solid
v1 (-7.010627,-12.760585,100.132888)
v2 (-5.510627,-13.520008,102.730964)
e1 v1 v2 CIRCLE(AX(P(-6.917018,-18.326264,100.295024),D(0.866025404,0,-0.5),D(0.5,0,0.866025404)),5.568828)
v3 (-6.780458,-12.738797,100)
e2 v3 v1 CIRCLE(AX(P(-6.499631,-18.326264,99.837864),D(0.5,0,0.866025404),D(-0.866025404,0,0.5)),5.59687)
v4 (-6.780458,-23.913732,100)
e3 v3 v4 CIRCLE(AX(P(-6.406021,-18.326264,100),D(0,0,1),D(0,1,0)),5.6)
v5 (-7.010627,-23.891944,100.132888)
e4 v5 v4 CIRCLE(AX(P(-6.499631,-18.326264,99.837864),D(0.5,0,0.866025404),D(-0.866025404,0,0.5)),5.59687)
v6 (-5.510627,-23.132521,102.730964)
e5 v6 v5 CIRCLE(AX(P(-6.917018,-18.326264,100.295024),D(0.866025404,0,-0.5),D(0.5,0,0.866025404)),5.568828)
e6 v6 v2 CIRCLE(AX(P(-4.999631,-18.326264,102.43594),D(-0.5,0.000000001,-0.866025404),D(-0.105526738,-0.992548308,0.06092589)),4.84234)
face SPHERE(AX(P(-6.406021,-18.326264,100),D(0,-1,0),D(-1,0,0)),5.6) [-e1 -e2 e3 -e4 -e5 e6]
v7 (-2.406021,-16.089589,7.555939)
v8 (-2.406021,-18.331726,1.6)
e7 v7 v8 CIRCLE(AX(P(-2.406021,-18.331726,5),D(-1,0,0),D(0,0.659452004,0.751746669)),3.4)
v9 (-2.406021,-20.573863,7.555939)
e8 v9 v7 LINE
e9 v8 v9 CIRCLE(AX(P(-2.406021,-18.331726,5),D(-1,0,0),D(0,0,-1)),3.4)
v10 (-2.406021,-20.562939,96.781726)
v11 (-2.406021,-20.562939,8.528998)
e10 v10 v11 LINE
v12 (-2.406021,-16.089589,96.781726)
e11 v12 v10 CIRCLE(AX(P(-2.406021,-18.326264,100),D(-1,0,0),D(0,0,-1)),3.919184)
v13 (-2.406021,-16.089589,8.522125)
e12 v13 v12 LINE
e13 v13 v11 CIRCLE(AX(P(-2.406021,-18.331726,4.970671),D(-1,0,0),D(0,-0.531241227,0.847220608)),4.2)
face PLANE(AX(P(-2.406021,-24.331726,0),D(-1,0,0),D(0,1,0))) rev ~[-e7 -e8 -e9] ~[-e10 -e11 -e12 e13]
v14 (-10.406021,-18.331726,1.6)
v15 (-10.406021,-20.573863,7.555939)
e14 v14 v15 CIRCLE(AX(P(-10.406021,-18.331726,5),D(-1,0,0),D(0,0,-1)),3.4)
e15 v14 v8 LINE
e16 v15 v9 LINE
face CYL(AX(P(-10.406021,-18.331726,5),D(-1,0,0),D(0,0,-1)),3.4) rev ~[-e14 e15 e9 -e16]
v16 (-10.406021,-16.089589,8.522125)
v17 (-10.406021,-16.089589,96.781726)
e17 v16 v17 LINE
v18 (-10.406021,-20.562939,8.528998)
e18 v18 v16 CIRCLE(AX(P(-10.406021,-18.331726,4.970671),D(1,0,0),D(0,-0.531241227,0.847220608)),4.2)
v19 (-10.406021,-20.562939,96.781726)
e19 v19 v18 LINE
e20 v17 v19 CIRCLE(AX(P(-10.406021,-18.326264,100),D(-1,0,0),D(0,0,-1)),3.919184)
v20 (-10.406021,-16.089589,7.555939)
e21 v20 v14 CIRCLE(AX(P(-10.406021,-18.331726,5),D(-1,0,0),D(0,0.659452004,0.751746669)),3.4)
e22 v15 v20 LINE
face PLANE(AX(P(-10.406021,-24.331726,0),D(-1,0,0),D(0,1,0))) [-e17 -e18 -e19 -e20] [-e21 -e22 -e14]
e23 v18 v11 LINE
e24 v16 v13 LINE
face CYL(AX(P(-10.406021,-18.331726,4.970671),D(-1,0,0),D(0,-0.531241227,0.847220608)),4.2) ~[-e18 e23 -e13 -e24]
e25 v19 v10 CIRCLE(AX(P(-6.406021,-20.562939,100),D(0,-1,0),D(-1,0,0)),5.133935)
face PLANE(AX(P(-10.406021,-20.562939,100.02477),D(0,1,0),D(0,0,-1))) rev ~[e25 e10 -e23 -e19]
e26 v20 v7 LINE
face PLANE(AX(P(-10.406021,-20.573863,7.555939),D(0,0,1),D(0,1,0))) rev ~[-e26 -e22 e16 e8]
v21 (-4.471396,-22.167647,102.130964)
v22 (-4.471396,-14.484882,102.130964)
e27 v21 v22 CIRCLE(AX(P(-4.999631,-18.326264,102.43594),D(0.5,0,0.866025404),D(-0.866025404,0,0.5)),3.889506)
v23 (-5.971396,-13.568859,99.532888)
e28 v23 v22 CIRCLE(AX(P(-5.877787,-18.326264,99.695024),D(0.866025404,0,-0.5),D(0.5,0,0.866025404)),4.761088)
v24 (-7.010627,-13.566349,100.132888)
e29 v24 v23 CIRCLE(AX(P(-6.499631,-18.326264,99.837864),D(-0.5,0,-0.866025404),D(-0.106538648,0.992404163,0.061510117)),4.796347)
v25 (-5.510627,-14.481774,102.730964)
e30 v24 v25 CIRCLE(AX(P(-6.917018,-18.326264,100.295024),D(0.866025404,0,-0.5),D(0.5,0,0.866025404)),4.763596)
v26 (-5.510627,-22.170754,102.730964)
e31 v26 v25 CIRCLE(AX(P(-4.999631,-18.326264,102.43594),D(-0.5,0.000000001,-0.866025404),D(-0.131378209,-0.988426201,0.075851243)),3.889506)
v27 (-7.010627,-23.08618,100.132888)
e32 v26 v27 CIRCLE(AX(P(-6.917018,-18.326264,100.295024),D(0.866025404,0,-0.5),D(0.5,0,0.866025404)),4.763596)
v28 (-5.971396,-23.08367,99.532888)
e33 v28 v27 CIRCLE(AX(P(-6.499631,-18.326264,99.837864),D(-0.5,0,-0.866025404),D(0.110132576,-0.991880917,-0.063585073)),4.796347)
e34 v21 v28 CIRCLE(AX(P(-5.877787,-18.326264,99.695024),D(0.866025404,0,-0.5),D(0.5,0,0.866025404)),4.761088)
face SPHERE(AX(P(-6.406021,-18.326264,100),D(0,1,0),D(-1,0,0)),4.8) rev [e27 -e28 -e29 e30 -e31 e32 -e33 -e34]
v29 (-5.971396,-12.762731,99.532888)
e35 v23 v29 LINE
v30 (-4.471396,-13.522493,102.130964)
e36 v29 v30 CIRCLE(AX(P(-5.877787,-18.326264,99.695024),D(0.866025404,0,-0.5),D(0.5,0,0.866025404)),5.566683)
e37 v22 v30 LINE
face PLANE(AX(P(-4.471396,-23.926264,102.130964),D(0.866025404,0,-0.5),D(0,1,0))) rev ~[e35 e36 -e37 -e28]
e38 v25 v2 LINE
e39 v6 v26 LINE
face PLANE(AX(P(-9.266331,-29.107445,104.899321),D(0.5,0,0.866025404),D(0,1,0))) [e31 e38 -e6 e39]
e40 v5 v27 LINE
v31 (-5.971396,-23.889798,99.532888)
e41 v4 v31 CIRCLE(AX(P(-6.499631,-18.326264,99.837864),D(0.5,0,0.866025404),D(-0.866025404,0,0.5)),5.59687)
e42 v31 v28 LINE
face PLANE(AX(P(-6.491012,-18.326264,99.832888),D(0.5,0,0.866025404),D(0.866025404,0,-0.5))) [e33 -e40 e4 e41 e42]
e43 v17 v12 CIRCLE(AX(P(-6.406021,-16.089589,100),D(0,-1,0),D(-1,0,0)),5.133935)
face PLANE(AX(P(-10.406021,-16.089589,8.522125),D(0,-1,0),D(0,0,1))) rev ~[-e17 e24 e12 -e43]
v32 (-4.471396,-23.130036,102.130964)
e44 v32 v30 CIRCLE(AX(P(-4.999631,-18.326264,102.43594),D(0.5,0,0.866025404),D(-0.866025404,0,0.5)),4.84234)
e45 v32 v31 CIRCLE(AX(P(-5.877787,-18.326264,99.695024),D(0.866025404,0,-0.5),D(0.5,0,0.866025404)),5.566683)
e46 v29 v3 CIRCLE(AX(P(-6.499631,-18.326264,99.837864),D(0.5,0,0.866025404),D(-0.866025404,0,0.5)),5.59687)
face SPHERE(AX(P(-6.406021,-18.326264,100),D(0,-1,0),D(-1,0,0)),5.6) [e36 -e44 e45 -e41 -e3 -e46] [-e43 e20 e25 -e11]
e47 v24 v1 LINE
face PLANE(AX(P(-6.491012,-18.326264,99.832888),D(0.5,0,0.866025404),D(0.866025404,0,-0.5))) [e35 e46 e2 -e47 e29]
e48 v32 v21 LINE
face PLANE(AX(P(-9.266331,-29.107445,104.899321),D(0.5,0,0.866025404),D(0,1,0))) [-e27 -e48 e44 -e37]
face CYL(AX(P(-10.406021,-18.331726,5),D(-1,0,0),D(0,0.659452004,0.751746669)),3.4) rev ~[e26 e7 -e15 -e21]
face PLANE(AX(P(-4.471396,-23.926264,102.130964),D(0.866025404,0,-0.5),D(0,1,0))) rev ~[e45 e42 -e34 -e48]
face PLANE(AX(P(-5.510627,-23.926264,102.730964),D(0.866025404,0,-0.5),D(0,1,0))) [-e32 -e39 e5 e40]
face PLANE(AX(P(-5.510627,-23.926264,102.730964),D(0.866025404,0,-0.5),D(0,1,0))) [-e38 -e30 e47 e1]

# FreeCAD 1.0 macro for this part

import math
import FreeCAD as App
import Part
import Sketcher
from FreeCAD import Vector


def add_polygon(sketch, points):
    """Adds a closed chain of lines whose ends are joined by coincident constraints."""
    first, n = sketch.GeometryCount, len(points)
    for a, b in zip(points, points[1:] + points[:1]):
        sketch.addGeometry(Part.LineSegment(App.Vector(*a, 0), App.Vector(*b, 0)), False)
    for i in range(n):
        sketch.addConstraint(Sketcher.Constraint("Coincident", first + i, 2, first + (i + 1) % n, 1))

doc = App.newDocument("Part")
body = doc.addObject("PartDesign::Body", "Body")

sketch1 = doc.addObject("Sketcher::SketchObject", "Sketch")
body.addObject(sketch1)
sketch1.AttachmentSupport = (doc.XY_Plane, [""])
sketch1.MapMode = "FlatFace"
add_polygon(sketch1, [(-10, -12), (-10, -24), (-2, -24), (-2, -12)])
sketch1.addConstraint(Sketcher.Constraint("Vertical", 0))
sketch1.addConstraint(Sketcher.Constraint("Horizontal", 1))
sketch1.addConstraint(Sketcher.Constraint("Vertical", 2))
sketch1.addConstraint(Sketcher.Constraint("Horizontal", 3))
sketch1.addConstraint(Sketcher.Constraint("DistanceX", 1, 1, 1, 2, 8.0))
sketch1.addConstraint(Sketcher.Constraint("DistanceY", 0, 2, 0, 1, 12.0))
sketch1.addConstraint(Sketcher.Constraint("DistanceX", 0, 2, -1, 1, 10.406021))
sketch1.addConstraint(Sketcher.Constraint("DistanceY", 0, 2, -1, 1, 24.331726))
pad1 = doc.addObject("PartDesign::Pad", "Pad")
body.addObject(pad1)
pad1.Profile = sketch1
pad1.Length = 100

sketch2 = doc.addObject("Sketcher::SketchObject", "Sketch001")
body.addObject(sketch2)
sketch2.AttachmentSupport = (doc.YZ_Plane, [""])
sketch2.MapMode = "FlatFace"
sketch2.AttachmentOffset = App.Placement(Vector(0, 0, -10.406021), App.Rotation())
sketch2.addGeometry(Part.LineSegment(Vector(-20.6, 7.6, 0), Vector(-16.1, 7.6, 0)), False)
sketch2.addGeometry(Part.ArcOfCircle(Part.Circle(Vector(-18.3, 5, 0), Vector(0, 0, 1), 3.4), math.radians(-90), math.radians(49)), False)
sketch2.addGeometry(Part.ArcOfCircle(Part.Circle(Vector(-18.3, 5, 0), Vector(0, 0, 1), 3.4), math.radians(131), math.radians(270)), False)
sketch2.addConstraint(Sketcher.Constraint("Coincident", 0, 2, 1, 2))
sketch2.addConstraint(Sketcher.Constraint("Tangent", 1, 1, 2, 2))
sketch2.addConstraint(Sketcher.Constraint("Coincident", 2, 1, 0, 1))
sketch2.addConstraint(Sketcher.Constraint("Horizontal", 0))
sketch2.addConstraint(Sketcher.Constraint("Equal", 1, 2))
sketch2.addConstraint(Sketcher.Constraint("Vertical", 2, 3, 1, 1))
sketch2.addConstraint(Sketcher.Constraint("Radius", 1, 3.4))
sketch2.addConstraint(Sketcher.Constraint("DistanceY", -1, 1, 1, 3, 5.0))
sketch2.addConstraint(Sketcher.Constraint("DistanceX", 0, 1, 0, 2, 4.484274))
sketch2.addConstraint(Sketcher.Constraint("DistanceX", 0, 2, -1, 1, 16.089589))
pocket1 = doc.addObject("PartDesign::Pocket", "Pocket")
body.addObject(pocket1)
pocket1.Profile = sketch2
pocket1.Length = 10
pocket1.Reversed = True

sketch3 = doc.addObject("Sketcher::SketchObject", "Sketch002")
body.addObject(sketch3)
sketch3.AttachmentSupport = (doc.YZ_Plane, [""])
sketch3.MapMode = "FlatFace"
sketch3.AttachmentOffset = App.Placement(Vector(0, 0, -10.406021), App.Rotation())
sketch3.addGeometry(Part.LineSegment(Vector(-12.3, 100, 0), Vector(-12.3, 0, 0)), False)
sketch3.addGeometry(Part.LineSegment(Vector(-12.3, 0, 0), Vector(-24.3, 0, 0)), False)
sketch3.addGeometry(Part.LineSegment(Vector(-24.3, 0, 0), Vector(-24.3, 100, 0)), False)
sketch3.addGeometry(Part.LineSegment(Vector(-24.3, 100, 0), Vector(-20.6, 100, 0)), False)
sketch3.addGeometry(Part.LineSegment(Vector(-20.6, 100, 0), Vector(-20.6, 8.5, 0)), False)
sketch3.addGeometry(Part.ArcOfCircle(Part.Circle(Vector(-18.3, 5, 0), Vector(0, 0, 1), 4.2), math.radians(122), math.radians(418)), False)
sketch3.addGeometry(Part.LineSegment(Vector(-16.1, 8.5, 0), Vector(-16.1, 100, 0)), False)
sketch3.addGeometry(Part.LineSegment(Vector(-16.1, 100, 0), Vector(-12.3, 100, 0)), False)
sketch3.addConstraint(Sketcher.Constraint("Coincident", 0, 2, 1, 1))
sketch3.addConstraint(Sketcher.Constraint("Coincident", 1, 2, 2, 1))
sketch3.addConstraint(Sketcher.Constraint("Coincident", 2, 2, 3, 1))
sketch3.addConstraint(Sketcher.Constraint("Coincident", 3, 2, 4, 1))
sketch3.addConstraint(Sketcher.Constraint("Coincident", 4, 2, 5, 1))
sketch3.addConstraint(Sketcher.Constraint("Coincident", 5, 2, 6, 1))
sketch3.addConstraint(Sketcher.Constraint("Coincident", 6, 2, 7, 1))
sketch3.addConstraint(Sketcher.Constraint("Coincident", 7, 2, 0, 1))
sketch3.addConstraint(Sketcher.Constraint("Vertical", 0))
sketch3.addConstraint(Sketcher.Constraint("Horizontal", 1))
sketch3.addConstraint(Sketcher.Constraint("Vertical", 2))
sketch3.addConstraint(Sketcher.Constraint("Vertical", 4))
sketch3.addConstraint(Sketcher.Constraint("Vertical", 6))
sketch3.addConstraint(Sketcher.Constraint("Horizontal", 3, 2, 6, 2))
sketch3.addConstraint(Sketcher.Constraint("Horizontal", 2, 2, 7, 2))
sketch3.addConstraint(Sketcher.Constraint("Radius", 5, 4.2))
sketch3.addConstraint(Sketcher.Constraint("DistanceX", 1, 2, 1, 1, 12.0))
sketch3.addConstraint(Sketcher.Constraint("DistanceY", -1, 1, 2, 2, 100.0))
sketch3.addConstraint(Sketcher.Constraint("DistanceX", 5, 3, 0, 2, 6.0))
sketch3.addConstraint(Sketcher.Constraint("DistanceY", 5, 3, 3, 2, 95.054099))
sketch3.addConstraint(Sketcher.Constraint("Distance", 3, 3.768868))
sketch3.addConstraint(Sketcher.Constraint("DistanceY", 0, 2, 0, 1, 100.011857))
sketch3.addConstraint(Sketcher.Constraint("DistanceY", 6, 1, 6, 2, 91.502646))
sketch3.addConstraint(Sketcher.Constraint("DistanceY", -1, 1, 5, 3, 4.970671))
sketch3.addConstraint(Sketcher.Constraint("DistanceX", 3, 2, -1, 1, 20.562939))
pocket2 = doc.addObject("PartDesign::Pocket", "Pocket001")
body.addObject(pocket2)
pocket2.Profile = sketch3
pocket2.Length = 100
pocket2.Reversed = True

sketch4 = doc.addObject("Sketcher::SketchObject", "Sketch003")
body.addObject(sketch4)
sketch4.AttachmentSupport = (doc.XY_Plane, [""])
sketch4.MapMode = "FlatFace"
sketch4.AttachmentOffset = App.Placement(Vector(0, 0, 100), App.Rotation())
sketch4.addGeometry(Part.LineSegment(Vector(-6.4, -13.5, 0), Vector(-6.4, -12.7, 0)), False)
sketch4.addGeometry(Part.ArcOfCircle(Part.Circle(Vector(-6.4, -18.3, 0), Vector(0, 0, 1), 5.6), math.radians(90), math.radians(270)), False)
sketch4.addGeometry(Part.LineSegment(Vector(-6.4, -23.9, 0), Vector(-6.4, -23.1, 0)), False)
sketch4.addGeometry(Part.ArcOfCircle(Part.Circle(Vector(-6.4, -18.3, 0), Vector(0, 0, 1), 4.8), math.radians(90), math.radians(270)), False)
sketch4.addGeometry(Part.LineSegment(Vector(-6.4, -12.7, 0), Vector(-6.4, -23.9, 0)), True)
sketch4.addConstraint(Sketcher.Constraint("Coincident", 0, 2, 1, 1))
sketch4.addConstraint(Sketcher.Constraint("Coincident", 1, 2, 2, 1))
sketch4.addConstraint(Sketcher.Constraint("Coincident", 2, 2, 3, 2))
sketch4.addConstraint(Sketcher.Constraint("Coincident", 3, 1, 0, 1))
sketch4.addConstraint(Sketcher.Constraint("Vertical", 0))
sketch4.addConstraint(Sketcher.Constraint("Vertical", 2))
sketch4.addConstraint(Sketcher.Constraint("Vertical", 4))
sketch4.addConstraint(Sketcher.Constraint("Coincident", 3, 3, 1, 3))
sketch4.addConstraint(Sketcher.Constraint("Coincident", 4, 1, 0, 2))
sketch4.addConstraint(Sketcher.Constraint("Coincident", 4, 2, 1, 2))
sketch4.addConstraint(Sketcher.Constraint("Vertical", 3, 3, 0, 2))
sketch4.addConstraint(Sketcher.Constraint("Radius", 1, 5.6))
sketch4.addConstraint(Sketcher.Constraint("Radius", 3, 4.8))
sketch4.addConstraint(Sketcher.Constraint("DistanceX", 1, 3, -1, 1, 6.406021))
sketch4.addConstraint(Sketcher.Constraint("DistanceY", 1, 3, -1, 1, 18.326264))
revolution = doc.addObject("PartDesign::Revolution", "Revolution")
body.addObject(revolution)
revolution.Profile = sketch4
revolution.ReferenceAxis = (sketch4, ["Axis0"])
revolution.Angle = 360

sketch5 = doc.addObject("Sketcher::SketchObject", "Sketch004")
body.addObject(sketch5)
sketch5.AttachmentSupport = (doc.XY_Plane, [""])
sketch5.MapMode = "FlatFace"
sketch5.AttachmentOffset = App.Placement(Vector(0, 0, 100), App.Rotation())
sketch5.addGeometry(Part.ArcOfCircle(Part.Circle(Vector(-6.4, -18.3, 0), Vector(0, 0, 1), 4.8), math.radians(90), math.radians(270)), False)
sketch5.addGeometry(Part.LineSegment(Vector(-6.4, -23.1, 0), Vector(-6.4, -13.5, 0)), False)
sketch5.addGeometry(Part.LineSegment(Vector(-6.4, -13.5, 0), Vector(-6.4, -23.1, 0)), True)
sketch5.addConstraint(Sketcher.Constraint("Coincident", 0, 1, 1, 2))
sketch5.addConstraint(Sketcher.Constraint("Coincident", 1, 1, 0, 2))
sketch5.addConstraint(Sketcher.Constraint("Vertical", 1))
sketch5.addConstraint(Sketcher.Constraint("Vertical", 2))
sketch5.addConstraint(Sketcher.Constraint("Coincident", 2, 1, 0, 1))
sketch5.addConstraint(Sketcher.Constraint("Equal", 1, 2))
sketch5.addConstraint(Sketcher.Constraint("Radius", 0, 4.8))
sketch5.addConstraint(Sketcher.Constraint("DistanceX", 0, 3, -1, 1, 6.406021))
sketch5.addConstraint(Sketcher.Constraint("DistanceX", 0, 1, -1, 1, 6.406021))
sketch5.addConstraint(Sketcher.Constraint("DistanceY", 0, 3, -1, 1, 18.326264))
groove = doc.addObject("PartDesign::Groove", "Groove")
body.addObject(groove)
groove.Profile = sketch5
groove.ReferenceAxis = (sketch5, ["Axis0"])
groove.Angle = 360

sketch6 = doc.addObject("Sketcher::SketchObject", "Sketch005")
body.addObject(sketch6)
sketch6.Placement = App.Placement(Vector(-52.372487, 0, 30.237269), App.Rotation(Vector(0.5, 0, 0.866025404), Vector(0, 1, 0), Vector(-0.866025404, 0, 0.5), "ZXY"))
add_polygon(sketch6, [(86, -10), (86, -29), (93, -29), (93, -10)])
sketch6.addConstraint(Sketcher.Constraint("Vertical", 0))
sketch6.addConstraint(Sketcher.Constraint("Horizontal", 1))
sketch6.addConstraint(Sketcher.Constraint("Vertical", 2))
sketch6.addConstraint(Sketcher.Constraint("Horizontal", 3))
sketch6.addConstraint(Sketcher.Constraint("DistanceX", 1, 1, 1, 2, 6.416979))
sketch6.addConstraint(Sketcher.Constraint("DistanceY", 0, 2, 0, 1, 19.463482))
sketch6.addConstraint(Sketcher.Constraint("DistanceX", -1, 1, 0, 2, 86.212311))
sketch6.addConstraint(Sketcher.Constraint("DistanceY", 0, 2, -1, 1, 29.107445))
pocket3 = doc.addObject("PartDesign::Pocket", "Pocket002")
body.addObject(pocket3)
pocket3.Profile = sketch6
pocket3.Type = "ThroughAll"
pocket3.Midplane = True

sketch7 = doc.addObject("Sketcher::SketchObject", "Sketch006")
body.addObject(sketch7)
sketch7.Placement = App.Placement(Vector(43.106156, 0, 74.662052), App.Rotation(Vector(0.866025404, 0, -0.5), Vector(0, 1, 0), Vector(0.5, 0, 0.866025404), "ZXY"))
add_polygon(sketch7, [(-56.1, -12.7), (-56.1, -23.9), (-54.9, -23.9), (-54.9, -12.7)])
sketch7.addConstraint(Sketcher.Constraint("Vertical", 0))
sketch7.addConstraint(Sketcher.Constraint("Horizontal", 1))
sketch7.addConstraint(Sketcher.Constraint("Vertical", 2))
sketch7.addConstraint(Sketcher.Constraint("Horizontal", 3))
sketch7.addConstraint(Sketcher.Constraint("DistanceX", 1, 1, 1, 2, 1.2))
sketch7.addConstraint(Sketcher.Constraint("DistanceY", 0, 2, 0, 1, 11.2))
sketch7.addConstraint(Sketcher.Constraint("DistanceX", 0, 2, -1, 1, 56.137825))
sketch7.addConstraint(Sketcher.Constraint("DistanceY", 0, 2, -1, 1, 23.926264))
pocket4 = doc.addObject("PartDesign::Pocket", "Pocket003")
body.addObject(pocket4)
pocket4.Profile = sketch7
pocket4.Length = 3

doc.recompute()
